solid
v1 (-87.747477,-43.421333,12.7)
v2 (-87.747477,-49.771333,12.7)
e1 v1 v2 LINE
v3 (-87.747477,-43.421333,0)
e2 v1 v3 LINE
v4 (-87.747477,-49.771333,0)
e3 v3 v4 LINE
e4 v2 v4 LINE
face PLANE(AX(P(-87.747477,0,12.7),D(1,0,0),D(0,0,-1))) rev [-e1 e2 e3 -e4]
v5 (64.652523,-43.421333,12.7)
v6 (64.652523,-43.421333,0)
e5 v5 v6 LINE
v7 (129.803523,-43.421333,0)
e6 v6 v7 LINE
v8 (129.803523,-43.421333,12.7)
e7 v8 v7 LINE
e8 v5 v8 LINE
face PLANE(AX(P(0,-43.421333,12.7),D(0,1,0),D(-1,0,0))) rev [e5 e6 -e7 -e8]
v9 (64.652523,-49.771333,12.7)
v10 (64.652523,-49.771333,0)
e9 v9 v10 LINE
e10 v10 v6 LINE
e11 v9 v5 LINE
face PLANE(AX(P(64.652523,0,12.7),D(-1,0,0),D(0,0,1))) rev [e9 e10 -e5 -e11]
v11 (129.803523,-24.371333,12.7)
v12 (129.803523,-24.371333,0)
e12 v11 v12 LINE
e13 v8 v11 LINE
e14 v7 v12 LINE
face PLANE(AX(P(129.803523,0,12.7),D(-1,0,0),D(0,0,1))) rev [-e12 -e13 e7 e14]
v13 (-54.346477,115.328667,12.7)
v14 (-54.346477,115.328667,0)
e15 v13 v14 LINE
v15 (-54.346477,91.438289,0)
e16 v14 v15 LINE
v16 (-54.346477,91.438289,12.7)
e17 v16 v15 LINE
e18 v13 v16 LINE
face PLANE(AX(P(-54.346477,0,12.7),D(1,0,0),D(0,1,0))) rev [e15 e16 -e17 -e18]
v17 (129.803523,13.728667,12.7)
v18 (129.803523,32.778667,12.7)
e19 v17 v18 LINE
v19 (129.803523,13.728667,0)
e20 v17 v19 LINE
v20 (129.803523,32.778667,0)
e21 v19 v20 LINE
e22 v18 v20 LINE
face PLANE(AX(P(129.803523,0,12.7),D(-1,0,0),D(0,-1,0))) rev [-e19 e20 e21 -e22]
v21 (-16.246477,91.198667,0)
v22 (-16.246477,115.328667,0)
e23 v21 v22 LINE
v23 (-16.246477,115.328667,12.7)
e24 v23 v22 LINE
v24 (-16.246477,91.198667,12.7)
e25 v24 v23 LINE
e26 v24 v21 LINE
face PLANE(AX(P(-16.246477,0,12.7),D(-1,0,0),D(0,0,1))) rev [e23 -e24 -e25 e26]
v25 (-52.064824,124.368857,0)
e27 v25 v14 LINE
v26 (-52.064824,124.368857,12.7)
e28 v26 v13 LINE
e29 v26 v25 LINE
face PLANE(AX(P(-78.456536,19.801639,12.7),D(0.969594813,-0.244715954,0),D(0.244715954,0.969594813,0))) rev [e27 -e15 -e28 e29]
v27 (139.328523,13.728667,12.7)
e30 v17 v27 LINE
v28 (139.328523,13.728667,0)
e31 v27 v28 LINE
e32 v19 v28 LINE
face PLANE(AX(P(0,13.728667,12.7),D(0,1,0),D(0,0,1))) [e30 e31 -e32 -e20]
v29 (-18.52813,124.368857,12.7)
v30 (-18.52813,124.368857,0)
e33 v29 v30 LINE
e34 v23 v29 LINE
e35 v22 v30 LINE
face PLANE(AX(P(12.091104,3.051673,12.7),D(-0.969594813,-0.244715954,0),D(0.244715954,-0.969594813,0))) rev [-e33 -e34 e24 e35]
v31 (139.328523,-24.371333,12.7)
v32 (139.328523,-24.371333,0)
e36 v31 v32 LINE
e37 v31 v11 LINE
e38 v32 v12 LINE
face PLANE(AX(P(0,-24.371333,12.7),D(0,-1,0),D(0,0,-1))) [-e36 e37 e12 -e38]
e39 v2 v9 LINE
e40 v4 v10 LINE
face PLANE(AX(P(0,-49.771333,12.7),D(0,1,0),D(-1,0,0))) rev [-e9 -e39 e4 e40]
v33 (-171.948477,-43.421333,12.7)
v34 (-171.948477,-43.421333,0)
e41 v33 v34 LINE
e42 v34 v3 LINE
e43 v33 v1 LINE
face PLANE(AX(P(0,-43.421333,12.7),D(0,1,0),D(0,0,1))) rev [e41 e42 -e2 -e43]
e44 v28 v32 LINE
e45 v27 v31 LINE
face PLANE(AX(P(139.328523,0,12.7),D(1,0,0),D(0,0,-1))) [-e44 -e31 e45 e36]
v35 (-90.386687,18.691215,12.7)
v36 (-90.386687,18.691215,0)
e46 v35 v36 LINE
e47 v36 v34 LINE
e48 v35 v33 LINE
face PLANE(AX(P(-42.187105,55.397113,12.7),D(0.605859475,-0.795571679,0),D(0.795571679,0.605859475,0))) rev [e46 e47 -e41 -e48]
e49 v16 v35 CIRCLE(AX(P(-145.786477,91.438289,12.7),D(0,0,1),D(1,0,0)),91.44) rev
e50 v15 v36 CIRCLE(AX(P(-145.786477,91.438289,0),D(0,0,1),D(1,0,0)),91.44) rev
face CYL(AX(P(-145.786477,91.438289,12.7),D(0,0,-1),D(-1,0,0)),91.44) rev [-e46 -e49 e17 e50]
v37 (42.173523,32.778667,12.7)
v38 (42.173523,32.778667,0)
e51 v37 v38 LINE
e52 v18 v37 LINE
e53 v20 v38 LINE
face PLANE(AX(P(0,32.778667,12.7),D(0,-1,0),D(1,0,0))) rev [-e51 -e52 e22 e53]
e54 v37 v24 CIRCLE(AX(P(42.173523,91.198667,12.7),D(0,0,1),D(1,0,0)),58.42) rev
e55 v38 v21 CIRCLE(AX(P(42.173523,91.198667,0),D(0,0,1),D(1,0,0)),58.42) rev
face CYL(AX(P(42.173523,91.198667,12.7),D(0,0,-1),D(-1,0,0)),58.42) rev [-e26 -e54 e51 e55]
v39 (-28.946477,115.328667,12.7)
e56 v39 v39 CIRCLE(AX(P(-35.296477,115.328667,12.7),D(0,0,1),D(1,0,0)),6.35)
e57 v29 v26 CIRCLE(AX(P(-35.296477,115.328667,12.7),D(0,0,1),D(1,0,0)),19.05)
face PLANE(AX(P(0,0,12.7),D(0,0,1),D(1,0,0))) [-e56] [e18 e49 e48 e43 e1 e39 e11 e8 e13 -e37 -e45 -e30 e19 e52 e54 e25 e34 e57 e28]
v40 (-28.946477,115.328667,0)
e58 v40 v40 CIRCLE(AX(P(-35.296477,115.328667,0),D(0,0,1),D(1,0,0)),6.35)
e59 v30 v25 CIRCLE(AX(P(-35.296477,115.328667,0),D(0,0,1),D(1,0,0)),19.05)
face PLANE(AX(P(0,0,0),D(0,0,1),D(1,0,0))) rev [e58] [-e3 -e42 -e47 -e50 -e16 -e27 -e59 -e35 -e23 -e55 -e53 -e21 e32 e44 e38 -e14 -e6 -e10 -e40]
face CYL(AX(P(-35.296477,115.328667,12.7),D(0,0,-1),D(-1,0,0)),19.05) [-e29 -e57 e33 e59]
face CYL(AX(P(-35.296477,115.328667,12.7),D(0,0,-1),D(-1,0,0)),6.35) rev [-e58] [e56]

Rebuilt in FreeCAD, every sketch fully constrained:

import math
import FreeCAD as App
import Part
import Sketcher

V = App.Vector
Q = App.Units.Quantity

doc = App.newDocument("Part")
body = doc.addObject("PartDesign::Body", "Body")

# Sketch on XY plane
sketch1 = body.newObject("Sketcher::SketchObject", "Sketch")
sketch1.AttachmentSupport = (doc.getObject("XY_Plane"), [""])
sketch1.MapMode = "FlatFace"
sketch1.addGeometry(Part.LineSegment(V(130, 14, 0), V(130, 33, 0)), False)
sketch1.addGeometry(Part.LineSegment(V(130, 33, 0), V(42, 33, 0)), False)
sketch1.addGeometry(Part.ArcOfCircle(Part.Circle(V(42, 91, 0), V(0, 0, 1), 58), math.radians(-180), math.radians(-90)), False)
sketch1.addGeometry(Part.LineSegment(V(-16, 91, 0), V(-16, 115, 0)), False)
sketch1.addGeometry(Part.LineSegment(V(-16, 115, 0), V(-19, 124, 0)), False)
sketch1.addGeometry(Part.ArcOfCircle(Part.Circle(V(-35, 115, 0), V(0, 0, 1), 19), math.radians(28), math.radians(152)), False)
sketch1.addGeometry(Part.LineSegment(V(-52, 124, 0), V(-54, 115, 0)), False)
sketch1.addGeometry(Part.LineSegment(V(-54, 115, 0), V(-54, 91, 0)), False)
sketch1.addGeometry(Part.ArcOfCircle(Part.Circle(V(-146, 91, 0), V(0, 0, 1), 91), math.radians(-53), math.radians(0)), False)
sketch1.addGeometry(Part.LineSegment(V(-90, 19, 0), V(-172, -43, 0)), False)
sketch1.addGeometry(Part.LineSegment(V(-172, -43, 0), V(-88, -43, 0)), False)
sketch1.addGeometry(Part.LineSegment(V(-88, -43, 0), V(-88, -50, 0)), False)
sketch1.addGeometry(Part.LineSegment(V(-88, -50, 0), V(65, -50, 0)), False)
sketch1.addGeometry(Part.LineSegment(V(65, -50, 0), V(65, -43, 0)), False)
sketch1.addGeometry(Part.LineSegment(V(65, -43, 0), V(130, -43, 0)), False)
sketch1.addGeometry(Part.LineSegment(V(130, -43, 0), V(130, -24, 0)), False)
sketch1.addGeometry(Part.LineSegment(V(130, -24, 0), V(139, -24, 0)), False)
sketch1.addGeometry(Part.LineSegment(V(139, -24, 0), V(139, 14, 0)), False)
sketch1.addGeometry(Part.LineSegment(V(139, 14, 0), V(130, 14, 0)), False)
sketch1.addGeometry(Part.Circle(V(-35, 115, 0), V(0, 0, 1), 6), False)
sketch1.addConstraint(Sketcher.Constraint("Coincident", 0, 2, 1, 1))
sketch1.addConstraint(Sketcher.Constraint("Tangent", 1, 2, 2, 2))
sketch1.addConstraint(Sketcher.Constraint("Tangent", 2, 1, 3, 1))
sketch1.addConstraint(Sketcher.Constraint("Coincident", 3, 2, 4, 1))
sketch1.addConstraint(Sketcher.Constraint("Coincident", 4, 2, 5, 1))
sketch1.addConstraint(Sketcher.Constraint("Coincident", 5, 2, 6, 1))
sketch1.addConstraint(Sketcher.Constraint("Coincident", 6, 2, 7, 1))
sketch1.addConstraint(Sketcher.Constraint("Tangent", 7, 2, 8, 2))
sketch1.addConstraint(Sketcher.Constraint("Tangent", 8, 1, 9, 1))
sketch1.addConstraint(Sketcher.Constraint("Coincident", 9, 2, 10, 1))
sketch1.addConstraint(Sketcher.Constraint("Coincident", 10, 2, 11, 1))
sketch1.addConstraint(Sketcher.Constraint("Coincident", 11, 2, 12, 1))
sketch1.addConstraint(Sketcher.Constraint("Coincident", 12, 2, 13, 1))
sketch1.addConstraint(Sketcher.Constraint("Coincident", 13, 2, 14, 1))
sketch1.addConstraint(Sketcher.Constraint("Coincident", 14, 2, 15, 1))
sketch1.addConstraint(Sketcher.Constraint("Coincident", 15, 2, 16, 1))
sketch1.addConstraint(Sketcher.Constraint("Coincident", 16, 2, 17, 1))
sketch1.addConstraint(Sketcher.Constraint("Coincident", 17, 2, 18, 1))
sketch1.addConstraint(Sketcher.Constraint("Coincident", 18, 2, 0, 1))
sketch1.addConstraint(Sketcher.Constraint("Vertical", 0))
sketch1.addConstraint(Sketcher.Constraint("Horizontal", 1))
sketch1.addConstraint(Sketcher.Constraint("Vertical", 3))
sketch1.addConstraint(Sketcher.Constraint("Vertical", 7))
sketch1.addConstraint(Sketcher.Constraint("Horizontal", 10))
sketch1.addConstraint(Sketcher.Constraint("Vertical", 11))
sketch1.addConstraint(Sketcher.Constraint("Horizontal", 12))
sketch1.addConstraint(Sketcher.Constraint("Vertical", 13))
sketch1.addConstraint(Sketcher.Constraint("Horizontal", 14))
sketch1.addConstraint(Sketcher.Constraint("Vertical", 15))
sketch1.addConstraint(Sketcher.Constraint("Horizontal", 16))
sketch1.addConstraint(Sketcher.Constraint("Vertical", 17))
sketch1.addConstraint(Sketcher.Constraint("Horizontal", 18))
sketch1.addConstraint(Sketcher.Constraint("Coincident", 19, 3, 5, 3))
sketch1.addConstraint(Sketcher.Constraint("Horizontal", 19, 3, 3, 2))
sketch1.addConstraint(Sketcher.Constraint("Horizontal", 4, 2, 5, 2))
sketch1.addConstraint(Sketcher.Constraint("Horizontal", 3, 2, 6, 2))
sketch1.addConstraint(Sketcher.Constraint("Horizontal", 10, 2, 13, 2))
sketch1.addConstraint(Sketcher.Constraint("Vertical", 0, 2, 14, 2))
sketch1.addConstraint(Sketcher.Constraint("Equal", 0, 15))
sketch1.addConstraint(Sketcher.Constraint("Equal", 4, 6))
sketch1.addConstraint(Sketcher.Constraint("Diameter", 19, Q("0.5 in")))
sketch1.addConstraint(Sketcher.Constraint("Radius", 2, Q("2.3 in")))
sketch1.addConstraint(Sketcher.Constraint("Radius", 8, Q("3.6 in")))
sketch1.addConstraint(Sketcher.Constraint("DistanceX", 12, 1, 12, 2, Q("6 in")))
sketch1.addConstraint(Sketcher.Constraint("Radius", 5, Q("0.75 in")))
sketch1.addConstraint(Sketcher.Constraint("DistanceY", 17, 1, 17, 2, Q("1.5 in")))
sketch1.addConstraint(Sketcher.Constraint("DistanceY", 10, 2, 1, 2, Q("3 in")))
sketch1.addConstraint(Sketcher.Constraint("DistanceY", 12, 2, 15, 2, Q("1 in")))
sketch1.addConstraint(Sketcher.Constraint("DistanceX", 1, 2, 1, 1, Q("3.45 in")))
sketch1.addConstraint(Sketcher.Constraint("DistanceY", 3, 1, 3, 2, Q("0.95 in")))
sketch1.addConstraint(Sketcher.Constraint("DistanceX", 8, 3, 2, 3, Q("7.4 in")))
sketch1.addConstraint(Sketcher.Constraint("DistanceX", 10, 1, 10, 2, Q("3.315 in")))
sketch1.addConstraint(Sketcher.Constraint("DistanceX", 14, 1, 14, 2, Q("2.565 in")))
sketch1.addConstraint(Sketcher.Constraint("DistanceX", 16, 1, 16, 2, Q("0.375 in")))
sketch1.addConstraint(Sketcher.Constraint("DistanceY", 7, 2, 7, 1, 23.890378))
sketch1.addConstraint(Sketcher.Constraint("DistanceY", -1, 1, 8, 3, 91.438289))
sketch1.addConstraint(Sketcher.Constraint("DistanceX", 4, 2, -1, 1, 18.52813))
sketch1.addConstraint(Sketcher.Constraint("DistanceY", 3, 2, 4, 2, 9.04019))
pad1 = body.newObject("PartDesign::Pad", "Pad")
pad1.Profile = sketch1
pad1.Length = Q("0.5 in")

doc.recompute()
